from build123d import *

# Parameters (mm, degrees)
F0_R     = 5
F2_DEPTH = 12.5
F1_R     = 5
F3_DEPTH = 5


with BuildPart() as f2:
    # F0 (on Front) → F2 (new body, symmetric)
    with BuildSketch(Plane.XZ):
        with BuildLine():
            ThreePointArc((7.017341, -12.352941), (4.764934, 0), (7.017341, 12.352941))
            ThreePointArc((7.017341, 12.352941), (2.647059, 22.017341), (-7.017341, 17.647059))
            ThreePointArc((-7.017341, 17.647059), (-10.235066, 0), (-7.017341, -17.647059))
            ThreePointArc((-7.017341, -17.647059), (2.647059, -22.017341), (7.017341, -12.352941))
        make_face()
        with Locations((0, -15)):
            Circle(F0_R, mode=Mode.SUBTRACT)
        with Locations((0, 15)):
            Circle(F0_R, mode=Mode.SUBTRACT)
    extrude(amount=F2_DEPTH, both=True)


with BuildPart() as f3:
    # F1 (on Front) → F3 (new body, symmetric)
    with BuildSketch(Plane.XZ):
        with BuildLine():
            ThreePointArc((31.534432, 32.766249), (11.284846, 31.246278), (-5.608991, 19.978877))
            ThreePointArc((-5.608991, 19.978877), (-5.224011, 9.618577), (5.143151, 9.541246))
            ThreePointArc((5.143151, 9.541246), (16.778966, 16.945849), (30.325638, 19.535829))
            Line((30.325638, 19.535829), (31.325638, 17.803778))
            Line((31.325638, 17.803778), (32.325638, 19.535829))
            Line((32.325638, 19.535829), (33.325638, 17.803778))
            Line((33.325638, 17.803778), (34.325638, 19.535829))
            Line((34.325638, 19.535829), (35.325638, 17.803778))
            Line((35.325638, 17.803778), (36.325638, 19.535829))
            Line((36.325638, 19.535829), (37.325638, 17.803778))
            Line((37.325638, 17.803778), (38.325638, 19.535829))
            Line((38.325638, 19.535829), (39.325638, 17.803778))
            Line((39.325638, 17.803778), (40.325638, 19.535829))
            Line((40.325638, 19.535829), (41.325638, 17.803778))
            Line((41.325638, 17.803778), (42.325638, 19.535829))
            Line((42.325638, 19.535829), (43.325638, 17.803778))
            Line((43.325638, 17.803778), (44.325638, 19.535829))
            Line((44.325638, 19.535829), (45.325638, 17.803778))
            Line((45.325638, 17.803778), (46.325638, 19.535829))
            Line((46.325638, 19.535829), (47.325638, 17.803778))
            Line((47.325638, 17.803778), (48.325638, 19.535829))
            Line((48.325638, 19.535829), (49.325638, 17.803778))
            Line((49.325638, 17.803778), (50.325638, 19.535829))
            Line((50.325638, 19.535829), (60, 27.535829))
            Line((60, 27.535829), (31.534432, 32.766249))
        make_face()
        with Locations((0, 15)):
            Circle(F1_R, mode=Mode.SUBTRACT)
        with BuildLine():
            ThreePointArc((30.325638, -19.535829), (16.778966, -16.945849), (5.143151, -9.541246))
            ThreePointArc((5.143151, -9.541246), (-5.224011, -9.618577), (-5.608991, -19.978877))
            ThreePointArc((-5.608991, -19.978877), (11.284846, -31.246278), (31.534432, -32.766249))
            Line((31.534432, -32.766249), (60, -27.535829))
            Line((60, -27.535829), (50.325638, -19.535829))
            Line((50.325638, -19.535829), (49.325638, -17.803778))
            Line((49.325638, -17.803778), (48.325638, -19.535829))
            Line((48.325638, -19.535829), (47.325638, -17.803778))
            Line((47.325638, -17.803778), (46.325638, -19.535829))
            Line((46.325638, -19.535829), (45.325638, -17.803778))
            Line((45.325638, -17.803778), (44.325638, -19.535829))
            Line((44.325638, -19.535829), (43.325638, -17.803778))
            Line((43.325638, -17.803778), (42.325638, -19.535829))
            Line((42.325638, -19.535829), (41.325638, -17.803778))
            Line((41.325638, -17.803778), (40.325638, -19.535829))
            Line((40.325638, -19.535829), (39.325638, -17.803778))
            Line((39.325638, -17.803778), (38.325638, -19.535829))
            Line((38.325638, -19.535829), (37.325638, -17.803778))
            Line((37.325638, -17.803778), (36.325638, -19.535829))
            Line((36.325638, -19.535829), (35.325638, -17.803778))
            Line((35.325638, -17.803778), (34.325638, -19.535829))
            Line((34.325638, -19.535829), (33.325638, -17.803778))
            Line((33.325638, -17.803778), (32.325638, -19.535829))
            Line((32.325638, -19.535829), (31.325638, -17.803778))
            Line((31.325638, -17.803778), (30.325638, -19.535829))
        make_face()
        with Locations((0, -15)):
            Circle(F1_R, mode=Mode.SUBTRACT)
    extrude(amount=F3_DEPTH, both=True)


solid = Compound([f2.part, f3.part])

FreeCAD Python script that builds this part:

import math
import FreeCAD as App
import Part
import Sketcher
from FreeCAD import Vector
Q = App.Units.Quantity

doc = App.newDocument("Part")
body = doc.addObject("PartDesign::Body", "Body")

sketch1 = body.newObject("Sketcher::SketchObject", "Sketch")
sketch1.AttachmentSupport = (doc.getObject("XZ_Plane"), [""])
sketch1.MapMode = "FlatFace"
sketch1.addGeometry([
    Part.ArcOfCircle(Part.Circle(Vector(40, 0, 0), Vector(0, 0, 1), 35), math.radians(159), math.radians(201)),
    Part.ArcOfCircle(Part.Circle(Vector(0, 15, 0), Vector(0, 0, 1), 7), math.radians(-21), math.radians(159)),
    Part.ArcOfCircle(Part.Circle(Vector(40, 0, 0), Vector(0, 0, 1), 50), math.radians(159), math.radians(201)),
    Part.ArcOfCircle(Part.Circle(Vector(0, -15, 0), Vector(0, 0, 1), 7), math.radians(-159), math.radians(21)),
    Part.Circle(Vector(0, -15, 0), Vector(0, 0, 1), 5),
    Part.Circle(Vector(0, 15, 0), Vector(0, 0, 1), 5),
], False)
sketch1.addConstraint([
    Sketcher.Constraint("Tangent", 0, 1, 1, 1),
    Sketcher.Constraint("Tangent", 1, 2, 2, 1),
    Sketcher.Constraint("Tangent", 2, 2, 3, 1),
    Sketcher.Constraint("Tangent", 3, 2, 0, 2),
    Sketcher.Constraint("Coincident", 2, 3, 0, 3),
    Sketcher.Constraint("Coincident", 4, 3, 3, 3),
    Sketcher.Constraint("Coincident", 5, 3, 1, 3),
    Sketcher.Constraint("Equal", 4, 5),
    Sketcher.Constraint("Symmetric", 1, 3, 3, 3, -1, 1),
    Sketcher.Constraint("PointOnObject", 0, 3, -1),
    Sketcher.Constraint("Diameter", 4, 10.0),
    Sketcher.Constraint("Radius", 0, 35.0),
    Sketcher.Constraint("Radius", 1, 7.5),
    Sketcher.Constraint("DistanceY", -1, 1, 1, 3, 15.0),
])
pad1 = body.newObject("PartDesign::Pad", "Pad")
pad1.Profile = sketch1
pad1.Length = 25
pad1.Midplane = True
body2 = doc.addObject("PartDesign::Body", "Body001")
body2.AllowCompound = True

sketch2 = body2.newObject("Sketcher::SketchObject", "Sketch001")
sketch2.AttachmentSupport = (doc.getObject("XZ_Plane001"), [""])
sketch2.MapMode = "FlatFace"
sketch2.addGeometry([
    Part.ArcOfCircle(Part.Circle(Vector(24.3, -6.6, 0), Vector(0, 0, 1), 40), math.radians(80), math.radians(138)),
    Part.ArcOfCircle(Part.Circle(Vector(0, 15, 0), Vector(0, 0, 1), 7.5), math.radians(138), math.radians(313)),
    Part.ArcOfCircle(Part.Circle(Vector(30.3, -17.2, 0), Vector(0, 0, 1), 36.7), math.radians(90), math.radians(133)),
    Part.LineSegment(Vector(30.3, 19.5, 0), Vector(31.3, 17.8, 0)),
    Part.LineSegment(Vector(31.3, 17.8, 0), Vector(32.3, 19.5, 0)),
    Part.LineSegment(Vector(32.3, 19.5, 0), Vector(33.3, 17.8, 0)),
    Part.LineSegment(Vector(33.3, 17.8, 0), Vector(34.3, 19.5, 0)),
    Part.LineSegment(Vector(34.3, 19.5, 0), Vector(35.3, 17.8, 0)),
    Part.LineSegment(Vector(35.3, 17.8, 0), Vector(36.3, 19.5, 0)),
    Part.LineSegment(Vector(36.3, 19.5, 0), Vector(37.3, 17.8, 0)),
    Part.LineSegment(Vector(37.3, 17.8, 0), Vector(38.3, 19.5, 0)),
    Part.LineSegment(Vector(38.3, 19.5, 0), Vector(39.3, 17.8, 0)),
    Part.LineSegment(Vector(39.3, 17.8, 0), Vector(40.3, 19.5, 0)),
    Part.LineSegment(Vector(40.3, 19.5, 0), Vector(41.3, 17.8, 0)),
    Part.LineSegment(Vector(41.3, 17.8, 0), Vector(42.3, 19.5, 0)),
    Part.LineSegment(Vector(42.3, 19.5, 0), Vector(43.3, 17.8, 0)),
    Part.LineSegment(Vector(43.3, 17.8, 0), Vector(44.3, 19.5, 0)),
    Part.LineSegment(Vector(44.3, 19.5, 0), Vector(45.3, 17.8, 0)),
    Part.LineSegment(Vector(45.3, 17.8, 0), Vector(46.3, 19.5, 0)),
    Part.LineSegment(Vector(46.3, 19.5, 0), Vector(47.3, 17.8, 0)),
    Part.LineSegment(Vector(47.3, 17.8, 0), Vector(48.3, 19.5, 0)),
    Part.LineSegment(Vector(48.3, 19.5, 0), Vector(49.3, 17.8, 0)),
    Part.LineSegment(Vector(49.3, 17.8, 0), Vector(50.3, 19.5, 0)),
    Part.LineSegment(Vector(50.3, 19.5, 0), Vector(60, 27.5, 0)),
    Part.LineSegment(Vector(60, 27.5, 0), Vector(31.5, 32.8, 0)),
    Part.Circle(Vector(0, 15, 0), Vector(0, 0, 1), 5),
    Part.ArcOfCircle(Part.Circle(Vector(30.3, 17.2, 0), Vector(0, 0, 1), 36.7), math.radians(-133), math.radians(-90)),
    Part.ArcOfCircle(Part.Circle(Vector(0, -15, 0), Vector(0, 0, 1), 7.5), math.radians(47), math.radians(222)),
    Part.ArcOfCircle(Part.Circle(Vector(24.3, 6.6, 0), Vector(0, 0, 1), 40), math.radians(-138), math.radians(-80)),
    Part.LineSegment(Vector(31.5, -32.8, 0), Vector(60, -27.5, 0)),
    Part.LineSegment(Vector(60, -27.5, 0), Vector(50.3, -19.5, 0)),
    Part.LineSegment(Vector(50.3, -19.5, 0), Vector(49.3, -17.8, 0)),
    Part.LineSegment(Vector(49.3, -17.8, 0), Vector(48.3, -19.5, 0)),
    Part.LineSegment(Vector(48.3, -19.5, 0), Vector(47.3, -17.8, 0)),
    Part.LineSegment(Vector(47.3, -17.8, 0), Vector(46.3, -19.5, 0)),
    Part.LineSegment(Vector(46.3, -19.5, 0), Vector(45.3, -17.8, 0)),
    Part.LineSegment(Vector(45.3, -17.8, 0), Vector(44.3, -19.5, 0)),
    Part.LineSegment(Vector(44.3, -19.5, 0), Vector(43.3, -17.8, 0)),
    Part.LineSegment(Vector(43.3, -17.8, 0), Vector(42.3, -19.5, 0)),
    Part.LineSegment(Vector(42.3, -19.5, 0), Vector(41.3, -17.8, 0)),
    Part.LineSegment(Vector(41.3, -17.8, 0), Vector(40.3, -19.5, 0)),
    Part.LineSegment(Vector(40.3, -19.5, 0), Vector(39.3, -17.8, 0)),
    Part.LineSegment(Vector(39.3, -17.8, 0), Vector(38.3, -19.5, 0)),
    Part.LineSegment(Vector(38.3, -19.5, 0), Vector(37.3, -17.8, 0)),
    Part.LineSegment(Vector(37.3, -17.8, 0), Vector(36.3, -19.5, 0)),
    Part.LineSegment(Vector(36.3, -19.5, 0), Vector(35.3, -17.8, 0)),
    Part.LineSegment(Vector(35.3, -17.8, 0), Vector(34.3, -19.5, 0)),
    Part.LineSegment(Vector(34.3, -19.5, 0), Vector(33.3, -17.8, 0)),
    Part.LineSegment(Vector(33.3, -17.8, 0), Vector(32.3, -19.5, 0)),
    Part.LineSegment(Vector(32.3, -19.5, 0), Vector(31.3, -17.8, 0)),
    Part.LineSegment(Vector(31.3, -17.8, 0), Vector(30.3, -19.5, 0)),
    Part.Circle(Vector(0, -15, 0), Vector(0, 0, 1), 5),
], False)
sketch2.addConstraint([
    Sketcher.Constraint("Tangent", 0, 2, 1, 1),
    Sketcher.Constraint("Tangent", 1, 2, 2, 2),
    Sketcher.Constraint("Coincident", 2, 1, 3, 1),
    Sketcher.Constraint("Coincident", 3, 2, 4, 1),
    Sketcher.Constraint("Coincident", 4, 2, 5, 1),
    Sketcher.Constraint("Coincident", 5, 2, 6, 1),
    Sketcher.Constraint("Coincident", 6, 2, 7, 1),
    Sketcher.Constraint("Coincident", 7, 2, 8, 1),
    Sketcher.Constraint("Coincident", 8, 2, 9, 1),
    Sketcher.Constraint("Coincident", 9, 2, 10, 1),
    Sketcher.Constraint("Coincident", 10, 2, 11, 1),
    Sketcher.Constraint("Coincident", 11, 2, 12, 1),
    Sketcher.Constraint("Coincident", 12, 2, 13, 1),
    Sketcher.Constraint("Coincident", 13, 2, 14, 1),
    Sketcher.Constraint("Coincident", 14, 2, 15, 1),
    Sketcher.Constraint("Coincident", 15, 2, 16, 1),
    Sketcher.Constraint("Coincident", 16, 2, 17, 1),
    Sketcher.Constraint("Coincident", 17, 2, 18, 1),
    Sketcher.Constraint("Coincident", 18, 2, 19, 1),
    Sketcher.Constraint("Coincident", 19, 2, 20, 1),
    Sketcher.Constraint("Coincident", 20, 2, 21, 1),
    Sketcher.Constraint("Coincident", 21, 2, 22, 1),
    Sketcher.Constraint("Coincident", 22, 2, 23, 1),
    Sketcher.Constraint("Coincident", 23, 2, 24, 1),
    Sketcher.Constraint("Tangent", 24, 2, 0, 1),
    Sketcher.Constraint("Tangent", 26, 1, 27, 1),
    Sketcher.Constraint("Tangent", 27, 2, 28, 1),
    Sketcher.Constraint("Tangent", 28, 2, 29, 1),
    Sketcher.Constraint("Coincident", 29, 2, 30, 1),
    Sketcher.Constraint("Coincident", 30, 2, 31, 1),
    Sketcher.Constraint("Coincident", 31, 2, 32, 1),
    Sketcher.Constraint("Coincident", 32, 2, 33, 1),
    Sketcher.Constraint("Coincident", 33, 2, 34, 1),
    Sketcher.Constraint("Coincident", 34, 2, 35, 1),
    Sketcher.Constraint("Coincident", 35, 2, 36, 1),
    Sketcher.Constraint("Coincident", 36, 2, 37, 1),
    Sketcher.Constraint("Coincident", 37, 2, 38, 1),
    Sketcher.Constraint("Coincident", 38, 2, 39, 1),
    Sketcher.Constraint("Coincident", 39, 2, 40, 1),
    Sketcher.Constraint("Coincident", 40, 2, 41, 1),
    Sketcher.Constraint("Coincident", 41, 2, 42, 1),
    Sketcher.Constraint("Coincident", 42, 2, 43, 1),
    Sketcher.Constraint("Coincident", 43, 2, 44, 1),
    Sketcher.Constraint("Coincident", 44, 2, 45, 1),
    Sketcher.Constraint("Coincident", 45, 2, 46, 1),
    Sketcher.Constraint("Coincident", 46, 2, 47, 1),
    Sketcher.Constraint("Coincident", 47, 2, 48, 1),
    Sketcher.Constraint("Coincident", 48, 2, 49, 1),
    Sketcher.Constraint("Coincident", 49, 2, 50, 1),
    Sketcher.Constraint("Coincident", 50, 2, 26, 2),
    Sketcher.Constraint("Coincident", 25, 3, 1, 3),
    Sketcher.Constraint("Coincident", 51, 3, 27, 3),
    Sketcher.Constraint("Equal", 2, 26),
    Sketcher.Constraint("Equal", 1, 27),
    Sketcher.Constraint("Equal", 0, 28),
    Sketcher.Constraint("Equal", 25, 51),
    Sketcher.Constraint("Symmetric", 1, 3, 27, 3, -1, 1),
    Sketcher.Constraint("Symmetric", 2, 3, 26, 3, -1),
    Sketcher.Constraint("Symmetric", 24, 2, 28, 2, -1),
    Sketcher.Constraint("Symmetric", 22, 2, 30, 2, -1),
    Sketcher.Constraint("Symmetric", 21, 2, 31, 2, -1),
    Sketcher.Constraint("Symmetric", 20, 2, 32, 2, -1),
    Sketcher.Constraint("Symmetric", 19, 2, 33, 2, -1),
    Sketcher.Constraint("Symmetric", 18, 2, 34, 2, -1),
    Sketcher.Constraint("Symmetric", 17, 2, 35, 2, -1),
    Sketcher.Constraint("Symmetric", 16, 2, 36, 2, -1),
    Sketcher.Constraint("Symmetric", 15, 2, 37, 2, -1),
    Sketcher.Constraint("Symmetric", 14, 2, 38, 2, -1),
    Sketcher.Constraint("Symmetric", 13, 2, 39, 2, -1),
    Sketcher.Constraint("Symmetric", 12, 2, 40, 2, -1),
    Sketcher.Constraint("Symmetric", 11, 2, 41, 2, -1),
    Sketcher.Constraint("Symmetric", 10, 2, 42, 2, -1),
    Sketcher.Constraint("Symmetric", 9, 2, 43, 2, -1),
    Sketcher.Constraint("Symmetric", 8, 2, 44, 2, -1),
    Sketcher.Constraint("Symmetric", 7, 2, 45, 2, -1),
    Sketcher.Constraint("Symmetric", 6, 2, 46, 2, -1),
    Sketcher.Constraint("Symmetric", 5, 2, 47, 2, -1),
    Sketcher.Constraint("Symmetric", 4, 2, 48, 2, -1),
    Sketcher.Constraint("Symmetric", 3, 2, 49, 2, -1),
    Sketcher.Constraint("Parallel", 3, 5),
    Sketcher.Constraint("Parallel", 4, 6),
    Sketcher.Constraint("Parallel", 5, 7),
    Sketcher.Constraint("Parallel", 6, 8),
    Sketcher.Constraint("Parallel", 7, 9),
    Sketcher.Constraint("Parallel", 8, 10),
    Sketcher.Constraint("Parallel", 9, 11),
    Sketcher.Constraint("Parallel", 10, 12),
    Sketcher.Constraint("Parallel", 11, 13),
    Sketcher.Constraint("Parallel", 12, 14),
    Sketcher.Constraint("Parallel", 13, 15),
    Sketcher.Constraint("Parallel", 14, 16),
    Sketcher.Constraint("Parallel", 15, 17),
    Sketcher.Constraint("Parallel", 16, 18),
    Sketcher.Constraint("Parallel", 17, 19),
    Sketcher.Constraint("Parallel", 18, 20),
    Sketcher.Constraint("Parallel", 19, 21),
    Sketcher.Constraint("Parallel", 20, 22),
    Sketcher.Constraint("Parallel", 21, 31),
    Sketcher.Constraint("Parallel", 48, 50),
    Sketcher.Constraint("Horizontal", 2, 1, 4, 2),
    Sketcher.Constraint("Horizontal", 3, 2, 5, 2),
    Sketcher.Constraint("Horizontal", 4, 2, 6, 2),
    Sketcher.Constraint("Horizontal", 5, 2, 7, 2),
    Sketcher.Constraint("Horizontal", 6, 2, 8, 2),
    Sketcher.Constraint("Horizontal", 7, 2, 9, 2),
    Sketcher.Constraint("Horizontal", 8, 2, 10, 2),
    Sketcher.Constraint("Horizontal", 9, 2, 11, 2),
    Sketcher.Constraint("Horizontal", 10, 2, 12, 2),
    Sketcher.Constraint("Horizontal", 11, 2, 13, 2),
    Sketcher.Constraint("Horizontal", 12, 2, 14, 2),
    Sketcher.Constraint("Horizontal", 13, 2, 15, 2),
    Sketcher.Constraint("Horizontal", 14, 2, 16, 2),
    Sketcher.Constraint("Horizontal", 15, 2, 17, 2),
    Sketcher.Constraint("Horizontal", 16, 2, 18, 2),
    Sketcher.Constraint("Horizontal", 17, 2, 19, 2),
    Sketcher.Constraint("Horizontal", 18, 2, 20, 2),
    Sketcher.Constraint("Horizontal", 19, 2, 21, 2),
    Sketcher.Constraint("Horizontal", 20, 2, 22, 2),
    Sketcher.Constraint("Vertical", 23, 2, 29, 2),
    Sketcher.Constraint("Diameter", 25, 10.0),
    Sketcher.Constraint("Radius", 0, 40.0),
    Sketcher.Constraint("Radius", 1, 7.5),
    Sketcher.Constraint("Angle", 3, Q("-60.000003 deg")),
    Sketcher.Constraint("Distance", 3, 2.0),
    Sketcher.Constraint("DistanceY", -1, 1, 1, 3, 15.0),
    Sketcher.Constraint("DistanceX", -1, 1, 23, 2, 60.0),
    Sketcher.Constraint("DistanceY", 22, 2, 23, 2, 8.0),
    Sketcher.Constraint("Radius", 2, 36.722366),
    Sketcher.Constraint("DistanceX", -1, 1, 0, 3, 24.305629),
    Sketcher.Constraint("DistanceX", -1, 1, 2, 3, 30.32564),
    Sketcher.Constraint("DistanceX", -1, 1, 2, 1, 30.325638),
])
pad2 = body2.newObject("PartDesign::Pad", "Pad001")
pad2.Profile = sketch2
pad2.Length = 10
pad2.Midplane = True

doc.recompute()
